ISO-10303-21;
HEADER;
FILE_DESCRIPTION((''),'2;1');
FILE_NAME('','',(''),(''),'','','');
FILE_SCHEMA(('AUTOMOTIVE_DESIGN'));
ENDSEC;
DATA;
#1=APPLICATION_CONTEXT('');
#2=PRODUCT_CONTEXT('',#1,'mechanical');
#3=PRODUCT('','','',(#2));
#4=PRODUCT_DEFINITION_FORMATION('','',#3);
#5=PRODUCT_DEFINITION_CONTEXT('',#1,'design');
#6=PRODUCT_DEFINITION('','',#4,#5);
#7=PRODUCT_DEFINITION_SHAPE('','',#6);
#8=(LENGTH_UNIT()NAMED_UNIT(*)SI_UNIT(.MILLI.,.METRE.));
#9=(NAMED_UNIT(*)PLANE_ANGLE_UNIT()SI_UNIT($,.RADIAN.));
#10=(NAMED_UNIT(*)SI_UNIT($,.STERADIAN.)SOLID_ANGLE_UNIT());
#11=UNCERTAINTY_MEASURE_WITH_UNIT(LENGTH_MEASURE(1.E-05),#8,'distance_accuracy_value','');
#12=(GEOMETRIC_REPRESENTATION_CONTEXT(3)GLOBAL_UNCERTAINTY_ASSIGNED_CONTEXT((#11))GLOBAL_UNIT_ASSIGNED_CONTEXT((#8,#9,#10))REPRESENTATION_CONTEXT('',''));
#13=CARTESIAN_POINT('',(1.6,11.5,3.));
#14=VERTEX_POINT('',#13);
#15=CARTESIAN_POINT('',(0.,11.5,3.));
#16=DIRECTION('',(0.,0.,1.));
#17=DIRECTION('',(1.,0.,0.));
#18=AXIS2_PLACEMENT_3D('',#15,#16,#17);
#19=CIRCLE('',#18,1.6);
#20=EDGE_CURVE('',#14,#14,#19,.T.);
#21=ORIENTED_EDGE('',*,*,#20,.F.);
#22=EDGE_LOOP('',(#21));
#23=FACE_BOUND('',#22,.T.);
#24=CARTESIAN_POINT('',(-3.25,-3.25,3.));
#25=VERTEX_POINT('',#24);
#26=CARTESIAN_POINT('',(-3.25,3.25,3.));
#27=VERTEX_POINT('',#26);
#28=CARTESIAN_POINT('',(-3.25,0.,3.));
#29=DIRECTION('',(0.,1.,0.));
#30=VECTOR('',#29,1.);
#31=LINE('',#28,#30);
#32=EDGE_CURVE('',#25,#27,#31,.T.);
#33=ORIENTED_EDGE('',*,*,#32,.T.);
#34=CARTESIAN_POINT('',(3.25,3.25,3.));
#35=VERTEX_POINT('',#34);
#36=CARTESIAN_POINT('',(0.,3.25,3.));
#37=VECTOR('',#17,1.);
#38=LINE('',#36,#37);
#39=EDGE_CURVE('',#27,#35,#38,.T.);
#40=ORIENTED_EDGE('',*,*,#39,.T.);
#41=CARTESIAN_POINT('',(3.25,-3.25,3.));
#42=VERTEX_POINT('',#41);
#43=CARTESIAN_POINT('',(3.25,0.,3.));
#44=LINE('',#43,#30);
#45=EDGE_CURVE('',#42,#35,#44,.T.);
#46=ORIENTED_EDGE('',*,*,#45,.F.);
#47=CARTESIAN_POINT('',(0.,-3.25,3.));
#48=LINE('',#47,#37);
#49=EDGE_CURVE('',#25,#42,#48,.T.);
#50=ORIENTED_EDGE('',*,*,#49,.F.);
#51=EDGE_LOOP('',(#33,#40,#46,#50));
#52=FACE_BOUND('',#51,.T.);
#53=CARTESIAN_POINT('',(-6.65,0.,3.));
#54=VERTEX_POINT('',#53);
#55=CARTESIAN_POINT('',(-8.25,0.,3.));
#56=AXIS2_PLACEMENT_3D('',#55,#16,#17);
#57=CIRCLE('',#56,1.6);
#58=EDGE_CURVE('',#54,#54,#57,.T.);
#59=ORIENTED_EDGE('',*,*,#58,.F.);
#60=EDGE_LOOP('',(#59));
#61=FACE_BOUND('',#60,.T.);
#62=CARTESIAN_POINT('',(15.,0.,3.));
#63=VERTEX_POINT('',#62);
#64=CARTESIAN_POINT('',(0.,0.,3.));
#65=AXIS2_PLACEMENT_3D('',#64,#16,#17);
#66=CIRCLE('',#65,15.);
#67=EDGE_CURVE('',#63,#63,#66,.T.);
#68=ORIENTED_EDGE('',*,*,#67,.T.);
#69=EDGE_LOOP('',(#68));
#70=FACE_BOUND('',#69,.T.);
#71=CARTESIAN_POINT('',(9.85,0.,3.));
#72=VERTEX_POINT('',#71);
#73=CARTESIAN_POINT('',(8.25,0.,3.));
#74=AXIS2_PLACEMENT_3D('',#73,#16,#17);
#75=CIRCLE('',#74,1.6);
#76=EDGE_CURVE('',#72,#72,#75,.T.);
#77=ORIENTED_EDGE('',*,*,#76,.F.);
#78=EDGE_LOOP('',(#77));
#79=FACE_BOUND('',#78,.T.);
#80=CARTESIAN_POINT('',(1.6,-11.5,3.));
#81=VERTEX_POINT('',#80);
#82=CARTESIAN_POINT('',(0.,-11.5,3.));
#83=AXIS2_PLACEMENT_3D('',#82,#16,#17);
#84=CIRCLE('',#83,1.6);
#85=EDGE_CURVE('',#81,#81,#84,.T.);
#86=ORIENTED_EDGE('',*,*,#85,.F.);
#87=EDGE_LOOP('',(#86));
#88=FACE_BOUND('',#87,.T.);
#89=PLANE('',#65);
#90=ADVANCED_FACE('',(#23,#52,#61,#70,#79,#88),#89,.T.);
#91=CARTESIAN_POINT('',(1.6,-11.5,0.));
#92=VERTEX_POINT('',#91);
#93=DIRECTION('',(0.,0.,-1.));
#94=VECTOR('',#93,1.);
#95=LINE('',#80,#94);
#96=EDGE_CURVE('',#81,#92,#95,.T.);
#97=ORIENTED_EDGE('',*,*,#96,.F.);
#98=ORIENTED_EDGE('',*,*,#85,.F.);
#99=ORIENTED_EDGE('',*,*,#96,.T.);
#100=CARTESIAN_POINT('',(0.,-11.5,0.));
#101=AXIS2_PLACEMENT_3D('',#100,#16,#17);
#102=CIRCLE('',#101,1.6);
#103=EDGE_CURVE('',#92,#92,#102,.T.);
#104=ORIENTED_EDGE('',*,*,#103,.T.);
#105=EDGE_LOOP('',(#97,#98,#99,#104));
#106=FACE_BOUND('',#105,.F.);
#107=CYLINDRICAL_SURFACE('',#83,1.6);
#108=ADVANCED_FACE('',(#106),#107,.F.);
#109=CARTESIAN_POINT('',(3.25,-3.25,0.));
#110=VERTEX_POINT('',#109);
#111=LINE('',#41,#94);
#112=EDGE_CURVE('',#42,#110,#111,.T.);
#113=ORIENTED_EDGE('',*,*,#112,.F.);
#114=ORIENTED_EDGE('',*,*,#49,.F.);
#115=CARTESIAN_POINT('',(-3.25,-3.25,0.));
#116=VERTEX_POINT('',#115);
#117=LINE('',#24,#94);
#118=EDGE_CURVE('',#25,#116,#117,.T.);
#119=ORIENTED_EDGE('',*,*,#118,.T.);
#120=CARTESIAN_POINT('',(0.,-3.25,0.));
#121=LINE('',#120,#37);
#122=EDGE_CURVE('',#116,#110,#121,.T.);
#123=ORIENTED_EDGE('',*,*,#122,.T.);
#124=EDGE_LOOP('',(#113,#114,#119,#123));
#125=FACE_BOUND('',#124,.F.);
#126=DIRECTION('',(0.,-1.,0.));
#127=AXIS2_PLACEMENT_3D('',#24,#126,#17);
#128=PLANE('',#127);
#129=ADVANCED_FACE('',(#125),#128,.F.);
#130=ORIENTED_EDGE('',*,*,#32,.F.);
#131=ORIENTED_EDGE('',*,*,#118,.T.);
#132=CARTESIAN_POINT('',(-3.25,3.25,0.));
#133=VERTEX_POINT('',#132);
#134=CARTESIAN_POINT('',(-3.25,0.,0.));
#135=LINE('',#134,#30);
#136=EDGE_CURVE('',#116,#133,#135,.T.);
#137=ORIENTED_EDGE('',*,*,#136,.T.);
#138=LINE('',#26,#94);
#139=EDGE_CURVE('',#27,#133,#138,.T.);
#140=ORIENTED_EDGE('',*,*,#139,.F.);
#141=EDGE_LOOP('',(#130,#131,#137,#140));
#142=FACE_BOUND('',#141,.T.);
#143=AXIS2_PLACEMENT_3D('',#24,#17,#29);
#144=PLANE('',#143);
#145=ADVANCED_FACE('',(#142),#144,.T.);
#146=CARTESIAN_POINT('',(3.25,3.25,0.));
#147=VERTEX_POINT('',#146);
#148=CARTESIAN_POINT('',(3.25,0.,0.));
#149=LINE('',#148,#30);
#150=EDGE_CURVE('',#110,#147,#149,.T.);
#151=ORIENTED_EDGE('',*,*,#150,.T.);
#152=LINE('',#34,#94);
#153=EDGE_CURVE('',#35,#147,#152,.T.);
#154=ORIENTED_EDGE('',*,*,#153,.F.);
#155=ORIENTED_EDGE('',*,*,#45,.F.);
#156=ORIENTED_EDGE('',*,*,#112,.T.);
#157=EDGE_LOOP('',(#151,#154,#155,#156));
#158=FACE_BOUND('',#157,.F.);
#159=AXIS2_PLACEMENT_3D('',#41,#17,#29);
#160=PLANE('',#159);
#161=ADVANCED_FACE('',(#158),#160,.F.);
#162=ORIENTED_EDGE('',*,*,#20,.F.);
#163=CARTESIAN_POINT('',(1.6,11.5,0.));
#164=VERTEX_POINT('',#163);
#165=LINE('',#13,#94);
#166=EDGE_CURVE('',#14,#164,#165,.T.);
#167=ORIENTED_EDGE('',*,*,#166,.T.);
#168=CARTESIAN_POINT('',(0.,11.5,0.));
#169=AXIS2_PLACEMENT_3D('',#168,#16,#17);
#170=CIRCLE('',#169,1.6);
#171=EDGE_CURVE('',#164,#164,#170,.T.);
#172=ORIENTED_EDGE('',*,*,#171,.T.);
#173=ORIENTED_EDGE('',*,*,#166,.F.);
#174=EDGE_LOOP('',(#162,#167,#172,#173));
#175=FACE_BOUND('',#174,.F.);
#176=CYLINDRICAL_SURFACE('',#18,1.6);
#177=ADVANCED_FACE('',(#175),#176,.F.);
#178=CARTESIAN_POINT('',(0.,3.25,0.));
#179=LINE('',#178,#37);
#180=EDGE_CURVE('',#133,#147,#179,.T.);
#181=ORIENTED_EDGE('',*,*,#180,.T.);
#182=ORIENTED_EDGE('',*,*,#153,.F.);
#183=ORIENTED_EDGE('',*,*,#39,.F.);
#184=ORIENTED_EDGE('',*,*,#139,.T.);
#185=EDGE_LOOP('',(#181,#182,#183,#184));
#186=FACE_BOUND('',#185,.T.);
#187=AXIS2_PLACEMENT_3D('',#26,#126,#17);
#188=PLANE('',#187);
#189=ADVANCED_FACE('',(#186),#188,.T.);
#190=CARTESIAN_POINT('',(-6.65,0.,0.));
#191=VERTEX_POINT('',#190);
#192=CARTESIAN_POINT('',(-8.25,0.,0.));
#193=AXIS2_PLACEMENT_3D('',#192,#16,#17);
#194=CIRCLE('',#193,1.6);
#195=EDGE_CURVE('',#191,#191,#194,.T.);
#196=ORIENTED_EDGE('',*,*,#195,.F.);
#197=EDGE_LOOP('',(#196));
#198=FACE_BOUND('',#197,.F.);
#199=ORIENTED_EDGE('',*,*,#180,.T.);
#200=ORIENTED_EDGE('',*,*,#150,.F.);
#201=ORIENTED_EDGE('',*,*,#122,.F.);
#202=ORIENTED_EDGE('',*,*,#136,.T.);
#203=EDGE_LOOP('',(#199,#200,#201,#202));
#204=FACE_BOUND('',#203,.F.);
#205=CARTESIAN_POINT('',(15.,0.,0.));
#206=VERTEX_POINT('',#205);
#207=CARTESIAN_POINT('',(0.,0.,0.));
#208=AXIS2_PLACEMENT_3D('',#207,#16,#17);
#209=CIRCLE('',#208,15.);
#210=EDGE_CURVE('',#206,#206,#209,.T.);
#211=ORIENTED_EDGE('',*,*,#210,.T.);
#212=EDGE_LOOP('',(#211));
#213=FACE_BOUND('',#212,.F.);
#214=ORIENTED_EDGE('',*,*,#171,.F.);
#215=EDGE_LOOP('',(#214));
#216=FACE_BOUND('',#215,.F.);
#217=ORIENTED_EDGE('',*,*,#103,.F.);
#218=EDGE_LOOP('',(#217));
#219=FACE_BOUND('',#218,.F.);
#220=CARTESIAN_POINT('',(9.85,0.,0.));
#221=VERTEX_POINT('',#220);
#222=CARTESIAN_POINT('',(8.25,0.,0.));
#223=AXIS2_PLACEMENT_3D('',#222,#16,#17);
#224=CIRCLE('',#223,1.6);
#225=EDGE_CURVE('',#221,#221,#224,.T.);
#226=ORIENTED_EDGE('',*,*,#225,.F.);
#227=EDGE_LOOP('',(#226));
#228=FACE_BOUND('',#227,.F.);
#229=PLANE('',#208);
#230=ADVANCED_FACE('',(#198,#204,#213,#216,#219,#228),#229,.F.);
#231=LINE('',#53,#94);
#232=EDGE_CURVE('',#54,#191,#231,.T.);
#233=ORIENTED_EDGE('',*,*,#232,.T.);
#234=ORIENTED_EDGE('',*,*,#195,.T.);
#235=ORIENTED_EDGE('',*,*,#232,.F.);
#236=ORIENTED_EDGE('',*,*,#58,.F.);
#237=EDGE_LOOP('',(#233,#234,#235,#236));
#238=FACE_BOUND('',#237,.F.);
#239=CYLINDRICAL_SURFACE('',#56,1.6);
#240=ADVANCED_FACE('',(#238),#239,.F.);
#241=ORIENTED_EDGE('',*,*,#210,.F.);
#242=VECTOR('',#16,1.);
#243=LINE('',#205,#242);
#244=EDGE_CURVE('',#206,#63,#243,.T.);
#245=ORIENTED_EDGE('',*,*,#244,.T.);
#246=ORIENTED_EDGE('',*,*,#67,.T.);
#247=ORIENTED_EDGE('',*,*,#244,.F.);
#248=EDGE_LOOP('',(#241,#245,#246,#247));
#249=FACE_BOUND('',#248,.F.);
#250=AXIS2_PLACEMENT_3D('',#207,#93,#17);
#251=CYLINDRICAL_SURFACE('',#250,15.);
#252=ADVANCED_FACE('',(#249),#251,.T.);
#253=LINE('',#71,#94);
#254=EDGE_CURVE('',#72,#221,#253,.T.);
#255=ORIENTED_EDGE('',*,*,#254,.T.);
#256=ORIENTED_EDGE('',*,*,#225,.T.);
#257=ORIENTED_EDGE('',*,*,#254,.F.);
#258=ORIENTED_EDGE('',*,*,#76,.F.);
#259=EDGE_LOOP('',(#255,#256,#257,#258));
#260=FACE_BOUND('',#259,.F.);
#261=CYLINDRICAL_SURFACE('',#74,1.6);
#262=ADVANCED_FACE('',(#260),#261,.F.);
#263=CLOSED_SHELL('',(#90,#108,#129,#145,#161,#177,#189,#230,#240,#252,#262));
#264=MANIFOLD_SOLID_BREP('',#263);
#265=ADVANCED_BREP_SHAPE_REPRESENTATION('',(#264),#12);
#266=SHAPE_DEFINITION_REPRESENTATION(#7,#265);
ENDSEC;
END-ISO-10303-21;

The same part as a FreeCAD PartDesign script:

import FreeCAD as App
import Part
import Sketcher

doc = App.newDocument("Part")
body = doc.addObject("PartDesign::Body", "Body")

# Sketch on XY plane
sketch1 = doc.addObject("Sketcher::SketchObject", "Sketch")
body.addObject(sketch1)
sketch1.AttachmentSupport = (doc.XY_Plane, [""])
sketch1.MapMode = "FlatFace"
sketch1.addGeometry(Part.Circle(App.Vector(0, 0, 0), App.Vector(0, 0, 1), 15), False)
sketch1.addConstraint(Sketcher.Constraint("Coincident", 0, 3, -1, 1))
sketch1.addConstraint(Sketcher.Constraint("Diameter", 0, 30.0))
pad1 = doc.addObject("PartDesign::Pad", "Pad")
body.addObject(pad1)
pad1.Profile = sketch1
pad1.Length = 3

# Sketch on XY plane
sketch2 = doc.addObject("Sketcher::SketchObject", "Sketch001")
body.addObject(sketch2)
sketch2.AttachmentSupport = (doc.XY_Plane, [""])
sketch2.MapMode = "FlatFace"
sketch2.AttachmentOffset = App.Placement(App.Vector(0, 0, 3), App.Rotation())
sketch2.addGeometry(Part.Circle(App.Vector(0, 11.5, 0), App.Vector(0, 0, 1), 1.6), False)
sketch2.addGeometry(Part.Circle(App.Vector(0, -11.5, 0), App.Vector(0, 0, 1), 1.6), False)
sketch2.addGeometry(Part.Circle(App.Vector(-8.2, 0, 0), App.Vector(0, 0, 1), 1.6), False)
sketch2.addGeometry(Part.Circle(App.Vector(8.2, 0, 0), App.Vector(0, 0, 1), 1.6), False)
sketch2.addGeometry(Part.LineSegment(App.Vector(-3.2, 3.2, 0), App.Vector(-3.2, -3.2, 0)), False)
sketch2.addGeometry(Part.LineSegment(App.Vector(-3.2, -3.2, 0), App.Vector(3.2, -3.2, 0)), False)
sketch2.addGeometry(Part.LineSegment(App.Vector(3.2, -3.2, 0), App.Vector(3.2, 3.2, 0)), False)
sketch2.addGeometry(Part.LineSegment(App.Vector(3.2, 3.2, 0), App.Vector(-3.2, 3.2, 0)), False)
sketch2.addConstraint(Sketcher.Constraint("Coincident", 4, 2, 5, 1))
sketch2.addConstraint(Sketcher.Constraint("Coincident", 5, 2, 6, 1))
sketch2.addConstraint(Sketcher.Constraint("Coincident", 6, 2, 7, 1))
sketch2.addConstraint(Sketcher.Constraint("Coincident", 7, 2, 4, 1))
sketch2.addConstraint(Sketcher.Constraint("Vertical", 4))
sketch2.addConstraint(Sketcher.Constraint("Horizontal", 5))
sketch2.addConstraint(Sketcher.Constraint("Vertical", 6))
sketch2.addConstraint(Sketcher.Constraint("Horizontal", 7))
sketch2.addConstraint(Sketcher.Constraint("Equal", 0, 1))
sketch2.addConstraint(Sketcher.Constraint("Equal", 1, 2))
sketch2.addConstraint(Sketcher.Constraint("Equal", 2, 3))
sketch2.addConstraint(Sketcher.Constraint("Symmetric", 0, 3, 1, 3, -1, 1))
sketch2.addConstraint(Sketcher.Constraint("Symmetric", 2, 3, 3, 3, -1, 1))
sketch2.addConstraint(Sketcher.Constraint("Symmetric", 4, 2, 6, 2, -1, 1))
sketch2.addConstraint(Sketcher.Constraint("PointOnObject", 0, 3, -2))
sketch2.addConstraint(Sketcher.Constraint("PointOnObject", 2, 3, -1))
sketch2.addConstraint(Sketcher.Constraint("Equal", 7, 4))
sketch2.addConstraint(Sketcher.Constraint("Diameter", 0, 3.2))
sketch2.addConstraint(Sketcher.Constraint("DistanceX", 5, 1, 5, 2, 6.5))
sketch2.addConstraint(Sketcher.Constraint("DistanceY", 1, 3, 0, 3, 23.0))
sketch2.addConstraint(Sketcher.Constraint("DistanceX", 2, 3, 4, 2, 5.0))
pocket1 = doc.addObject("PartDesign::Pocket", "Pocket")
body.addObject(pocket1)
pocket1.Profile = sketch2
pocket1.Type = "ThroughAll"

doc.recompute()
